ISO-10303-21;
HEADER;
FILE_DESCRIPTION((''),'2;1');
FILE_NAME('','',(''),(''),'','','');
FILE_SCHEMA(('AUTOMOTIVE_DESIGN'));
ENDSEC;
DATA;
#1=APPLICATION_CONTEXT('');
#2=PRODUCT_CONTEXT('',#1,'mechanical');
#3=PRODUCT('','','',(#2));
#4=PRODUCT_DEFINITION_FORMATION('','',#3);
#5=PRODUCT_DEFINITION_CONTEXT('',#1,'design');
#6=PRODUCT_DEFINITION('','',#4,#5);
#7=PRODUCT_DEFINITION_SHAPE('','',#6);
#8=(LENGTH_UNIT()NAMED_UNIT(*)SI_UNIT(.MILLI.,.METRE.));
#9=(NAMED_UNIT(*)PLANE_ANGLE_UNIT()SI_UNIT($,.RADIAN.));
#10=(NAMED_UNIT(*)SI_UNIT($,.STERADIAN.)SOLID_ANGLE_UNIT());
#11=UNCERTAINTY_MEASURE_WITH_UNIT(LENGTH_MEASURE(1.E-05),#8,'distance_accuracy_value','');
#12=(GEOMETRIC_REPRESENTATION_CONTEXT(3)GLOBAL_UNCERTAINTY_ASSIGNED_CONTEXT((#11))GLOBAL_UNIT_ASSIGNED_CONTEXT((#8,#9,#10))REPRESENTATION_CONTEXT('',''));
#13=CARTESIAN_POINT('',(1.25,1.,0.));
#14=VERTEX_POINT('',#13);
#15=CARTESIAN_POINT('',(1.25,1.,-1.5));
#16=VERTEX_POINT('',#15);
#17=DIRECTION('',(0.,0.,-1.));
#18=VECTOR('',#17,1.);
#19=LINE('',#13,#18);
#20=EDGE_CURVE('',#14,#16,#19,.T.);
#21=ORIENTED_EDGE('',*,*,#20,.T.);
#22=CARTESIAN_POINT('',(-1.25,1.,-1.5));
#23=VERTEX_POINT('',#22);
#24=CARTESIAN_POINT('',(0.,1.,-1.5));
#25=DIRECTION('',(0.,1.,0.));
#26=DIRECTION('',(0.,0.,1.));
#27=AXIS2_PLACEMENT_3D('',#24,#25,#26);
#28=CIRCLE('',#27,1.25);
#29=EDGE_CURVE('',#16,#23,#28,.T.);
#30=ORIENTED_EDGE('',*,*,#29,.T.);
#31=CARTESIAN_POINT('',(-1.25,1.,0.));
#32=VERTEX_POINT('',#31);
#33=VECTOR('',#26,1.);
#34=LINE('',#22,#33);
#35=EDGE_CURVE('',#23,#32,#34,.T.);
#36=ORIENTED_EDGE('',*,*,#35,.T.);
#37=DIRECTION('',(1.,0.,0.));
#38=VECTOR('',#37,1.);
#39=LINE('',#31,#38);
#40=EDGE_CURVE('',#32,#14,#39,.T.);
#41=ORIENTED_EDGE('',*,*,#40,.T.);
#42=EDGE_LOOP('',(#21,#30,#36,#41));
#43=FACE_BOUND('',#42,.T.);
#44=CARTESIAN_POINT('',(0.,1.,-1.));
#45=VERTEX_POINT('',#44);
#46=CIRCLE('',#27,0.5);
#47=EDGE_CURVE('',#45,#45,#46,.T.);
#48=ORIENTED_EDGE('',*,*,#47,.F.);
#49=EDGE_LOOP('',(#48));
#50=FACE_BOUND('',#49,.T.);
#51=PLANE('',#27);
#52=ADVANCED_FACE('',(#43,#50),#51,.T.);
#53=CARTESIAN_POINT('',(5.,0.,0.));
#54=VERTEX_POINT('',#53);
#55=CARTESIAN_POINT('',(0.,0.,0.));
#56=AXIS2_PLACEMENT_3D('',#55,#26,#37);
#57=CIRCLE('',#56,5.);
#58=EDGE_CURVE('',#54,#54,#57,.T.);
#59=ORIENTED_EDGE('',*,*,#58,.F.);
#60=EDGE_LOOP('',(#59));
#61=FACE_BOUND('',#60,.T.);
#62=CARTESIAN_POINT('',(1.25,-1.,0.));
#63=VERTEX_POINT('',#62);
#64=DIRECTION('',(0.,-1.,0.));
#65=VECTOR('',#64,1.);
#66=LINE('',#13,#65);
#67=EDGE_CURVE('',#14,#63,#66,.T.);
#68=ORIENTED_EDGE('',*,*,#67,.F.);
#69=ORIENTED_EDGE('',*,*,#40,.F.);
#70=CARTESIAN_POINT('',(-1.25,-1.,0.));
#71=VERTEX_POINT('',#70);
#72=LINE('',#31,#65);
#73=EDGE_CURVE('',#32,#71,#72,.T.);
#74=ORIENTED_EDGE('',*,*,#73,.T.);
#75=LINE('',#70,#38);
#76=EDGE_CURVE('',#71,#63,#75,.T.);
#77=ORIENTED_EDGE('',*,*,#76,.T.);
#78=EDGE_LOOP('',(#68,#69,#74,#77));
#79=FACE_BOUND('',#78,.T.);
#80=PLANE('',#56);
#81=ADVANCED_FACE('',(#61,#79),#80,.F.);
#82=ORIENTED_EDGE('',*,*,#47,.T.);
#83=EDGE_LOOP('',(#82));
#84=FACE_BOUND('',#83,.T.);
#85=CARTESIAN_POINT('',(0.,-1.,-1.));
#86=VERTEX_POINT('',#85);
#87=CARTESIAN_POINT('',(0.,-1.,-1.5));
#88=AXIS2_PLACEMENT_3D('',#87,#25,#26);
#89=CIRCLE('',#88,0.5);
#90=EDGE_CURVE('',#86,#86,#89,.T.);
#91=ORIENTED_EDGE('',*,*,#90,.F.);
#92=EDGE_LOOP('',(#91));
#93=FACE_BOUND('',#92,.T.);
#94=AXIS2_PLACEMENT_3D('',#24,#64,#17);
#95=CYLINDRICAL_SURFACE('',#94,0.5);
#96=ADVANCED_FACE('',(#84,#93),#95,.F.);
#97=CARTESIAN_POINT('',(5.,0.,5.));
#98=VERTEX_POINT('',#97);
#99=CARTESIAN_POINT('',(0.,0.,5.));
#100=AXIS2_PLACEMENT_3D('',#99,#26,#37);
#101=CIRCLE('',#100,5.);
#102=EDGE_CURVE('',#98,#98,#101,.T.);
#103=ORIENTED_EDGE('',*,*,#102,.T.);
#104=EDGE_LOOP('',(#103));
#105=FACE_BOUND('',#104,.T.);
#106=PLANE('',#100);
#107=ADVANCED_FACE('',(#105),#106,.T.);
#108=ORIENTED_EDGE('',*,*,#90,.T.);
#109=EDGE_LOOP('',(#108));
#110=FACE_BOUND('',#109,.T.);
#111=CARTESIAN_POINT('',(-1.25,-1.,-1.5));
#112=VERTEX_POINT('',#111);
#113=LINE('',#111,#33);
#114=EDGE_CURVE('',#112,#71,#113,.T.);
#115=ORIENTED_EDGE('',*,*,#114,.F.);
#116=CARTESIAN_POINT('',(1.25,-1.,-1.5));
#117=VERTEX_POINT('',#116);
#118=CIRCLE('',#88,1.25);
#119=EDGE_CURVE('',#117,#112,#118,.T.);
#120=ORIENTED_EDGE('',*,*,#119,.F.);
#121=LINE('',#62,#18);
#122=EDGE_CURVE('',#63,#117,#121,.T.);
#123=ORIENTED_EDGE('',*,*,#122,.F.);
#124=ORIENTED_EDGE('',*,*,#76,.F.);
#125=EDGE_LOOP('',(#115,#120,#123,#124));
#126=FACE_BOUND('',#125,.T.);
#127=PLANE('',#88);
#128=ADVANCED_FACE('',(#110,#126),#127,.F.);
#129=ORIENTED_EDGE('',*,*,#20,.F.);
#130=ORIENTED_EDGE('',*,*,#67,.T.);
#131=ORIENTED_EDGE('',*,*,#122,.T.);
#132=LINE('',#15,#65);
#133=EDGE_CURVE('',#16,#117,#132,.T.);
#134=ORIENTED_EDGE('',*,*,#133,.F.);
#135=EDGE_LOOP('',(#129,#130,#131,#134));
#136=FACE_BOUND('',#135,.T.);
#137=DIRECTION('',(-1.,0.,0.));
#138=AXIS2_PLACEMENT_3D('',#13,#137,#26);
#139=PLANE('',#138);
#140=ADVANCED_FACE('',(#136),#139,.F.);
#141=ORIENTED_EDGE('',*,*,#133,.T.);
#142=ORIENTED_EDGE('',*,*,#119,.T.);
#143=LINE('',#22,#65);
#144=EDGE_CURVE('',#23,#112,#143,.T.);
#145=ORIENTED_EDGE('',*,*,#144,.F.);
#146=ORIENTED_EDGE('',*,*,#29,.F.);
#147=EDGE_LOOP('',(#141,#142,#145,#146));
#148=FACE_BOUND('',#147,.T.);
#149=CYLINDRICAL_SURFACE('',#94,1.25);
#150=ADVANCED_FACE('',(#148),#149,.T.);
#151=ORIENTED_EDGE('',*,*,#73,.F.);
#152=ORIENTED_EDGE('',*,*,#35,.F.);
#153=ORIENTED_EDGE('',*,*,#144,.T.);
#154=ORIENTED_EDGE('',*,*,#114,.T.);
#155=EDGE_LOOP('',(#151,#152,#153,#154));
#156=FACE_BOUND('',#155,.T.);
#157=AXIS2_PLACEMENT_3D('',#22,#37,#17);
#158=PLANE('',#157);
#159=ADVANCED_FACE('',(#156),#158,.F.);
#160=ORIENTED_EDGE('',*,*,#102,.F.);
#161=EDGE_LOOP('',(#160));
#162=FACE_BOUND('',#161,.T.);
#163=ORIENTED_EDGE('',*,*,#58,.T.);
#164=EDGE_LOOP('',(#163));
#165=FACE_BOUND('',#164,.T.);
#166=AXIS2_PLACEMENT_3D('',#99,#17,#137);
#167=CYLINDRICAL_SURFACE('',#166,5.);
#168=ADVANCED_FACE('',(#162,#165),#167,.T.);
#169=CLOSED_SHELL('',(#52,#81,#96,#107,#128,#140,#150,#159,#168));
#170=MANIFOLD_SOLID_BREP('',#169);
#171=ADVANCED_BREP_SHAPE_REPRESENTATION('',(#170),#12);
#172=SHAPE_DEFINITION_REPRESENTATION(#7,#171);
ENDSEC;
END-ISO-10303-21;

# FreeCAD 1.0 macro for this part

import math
import FreeCAD as App
import Part
import Sketcher
from FreeCAD import Vector

doc = App.newDocument("Part")
body = doc.addObject("PartDesign::Body", "Body")

sketch1 = doc.addObject("Sketcher::SketchObject", "Sketch")
body.addObject(sketch1)
sketch1.AttachmentSupport = (doc.XY_Plane, [""])
sketch1.MapMode = "FlatFace"
sketch1.addGeometry(Part.Circle(Vector(0, 0, 0), Vector(0, 0, 1), 5), False)
sketch1.addConstraint(Sketcher.Constraint("Coincident", 0, 3, -1, 1))
sketch1.addConstraint(Sketcher.Constraint("Diameter", 0, 10.0))
pad1 = doc.addObject("PartDesign::Pad", "Pad")
body.addObject(pad1)
pad1.Profile = sketch1
pad1.Length = 5

sketch2 = doc.addObject("Sketcher::SketchObject", "Sketch001")
body.addObject(sketch2)
sketch2.AttachmentSupport = (doc.XZ_Plane, [""])
sketch2.MapMode = "FlatFace"
sketch2.addGeometry(Part.LineSegment(Vector(-1.2, 0, 0), Vector(1.2, 0, 0)), False)
sketch2.addGeometry(Part.LineSegment(Vector(1.2, 0, 0), Vector(1.2, -1.5, 0)), False)
sketch2.addGeometry(Part.ArcOfCircle(Part.Circle(Vector(0, -1.5, 0), Vector(0, 0, 1), 1.2), math.radians(180), math.radians(360)), False)
sketch2.addGeometry(Part.LineSegment(Vector(-1.2, -1.5, 0), Vector(-1.2, 0, 0)), False)
sketch2.addGeometry(Part.Circle(Vector(0, -1.5, 0), Vector(0, 0, 1), 0.5), False)
sketch2.addConstraint(Sketcher.Constraint("Coincident", 0, 2, 1, 1))
sketch2.addConstraint(Sketcher.Constraint("Tangent", 1, 2, 2, 2))
sketch2.addConstraint(Sketcher.Constraint("Tangent", 2, 1, 3, 1))
sketch2.addConstraint(Sketcher.Constraint("Coincident", 3, 2, 0, 1))
sketch2.addConstraint(Sketcher.Constraint("Horizontal", 0))
sketch2.addConstraint(Sketcher.Constraint("Vertical", 1))
sketch2.addConstraint(Sketcher.Constraint("Vertical", 3))
sketch2.addConstraint(Sketcher.Constraint("Coincident", 4, 3, 2, 3))
sketch2.addConstraint(Sketcher.Constraint("Symmetric", 0, 2, 3, 2, -1, 1))
sketch2.addConstraint(Sketcher.Constraint("Diameter", 4, 1.0))
sketch2.addConstraint(Sketcher.Constraint("Radius", 2, 1.25))
sketch2.addConstraint(Sketcher.Constraint("DistanceY", 1, 2, 1, 1, 1.5))
pad2 = doc.addObject("PartDesign::Pad", "Pad001")
body.addObject(pad2)
pad2.Profile = sketch2
pad2.Length = 2
pad2.Midplane = True

doc.recompute()
